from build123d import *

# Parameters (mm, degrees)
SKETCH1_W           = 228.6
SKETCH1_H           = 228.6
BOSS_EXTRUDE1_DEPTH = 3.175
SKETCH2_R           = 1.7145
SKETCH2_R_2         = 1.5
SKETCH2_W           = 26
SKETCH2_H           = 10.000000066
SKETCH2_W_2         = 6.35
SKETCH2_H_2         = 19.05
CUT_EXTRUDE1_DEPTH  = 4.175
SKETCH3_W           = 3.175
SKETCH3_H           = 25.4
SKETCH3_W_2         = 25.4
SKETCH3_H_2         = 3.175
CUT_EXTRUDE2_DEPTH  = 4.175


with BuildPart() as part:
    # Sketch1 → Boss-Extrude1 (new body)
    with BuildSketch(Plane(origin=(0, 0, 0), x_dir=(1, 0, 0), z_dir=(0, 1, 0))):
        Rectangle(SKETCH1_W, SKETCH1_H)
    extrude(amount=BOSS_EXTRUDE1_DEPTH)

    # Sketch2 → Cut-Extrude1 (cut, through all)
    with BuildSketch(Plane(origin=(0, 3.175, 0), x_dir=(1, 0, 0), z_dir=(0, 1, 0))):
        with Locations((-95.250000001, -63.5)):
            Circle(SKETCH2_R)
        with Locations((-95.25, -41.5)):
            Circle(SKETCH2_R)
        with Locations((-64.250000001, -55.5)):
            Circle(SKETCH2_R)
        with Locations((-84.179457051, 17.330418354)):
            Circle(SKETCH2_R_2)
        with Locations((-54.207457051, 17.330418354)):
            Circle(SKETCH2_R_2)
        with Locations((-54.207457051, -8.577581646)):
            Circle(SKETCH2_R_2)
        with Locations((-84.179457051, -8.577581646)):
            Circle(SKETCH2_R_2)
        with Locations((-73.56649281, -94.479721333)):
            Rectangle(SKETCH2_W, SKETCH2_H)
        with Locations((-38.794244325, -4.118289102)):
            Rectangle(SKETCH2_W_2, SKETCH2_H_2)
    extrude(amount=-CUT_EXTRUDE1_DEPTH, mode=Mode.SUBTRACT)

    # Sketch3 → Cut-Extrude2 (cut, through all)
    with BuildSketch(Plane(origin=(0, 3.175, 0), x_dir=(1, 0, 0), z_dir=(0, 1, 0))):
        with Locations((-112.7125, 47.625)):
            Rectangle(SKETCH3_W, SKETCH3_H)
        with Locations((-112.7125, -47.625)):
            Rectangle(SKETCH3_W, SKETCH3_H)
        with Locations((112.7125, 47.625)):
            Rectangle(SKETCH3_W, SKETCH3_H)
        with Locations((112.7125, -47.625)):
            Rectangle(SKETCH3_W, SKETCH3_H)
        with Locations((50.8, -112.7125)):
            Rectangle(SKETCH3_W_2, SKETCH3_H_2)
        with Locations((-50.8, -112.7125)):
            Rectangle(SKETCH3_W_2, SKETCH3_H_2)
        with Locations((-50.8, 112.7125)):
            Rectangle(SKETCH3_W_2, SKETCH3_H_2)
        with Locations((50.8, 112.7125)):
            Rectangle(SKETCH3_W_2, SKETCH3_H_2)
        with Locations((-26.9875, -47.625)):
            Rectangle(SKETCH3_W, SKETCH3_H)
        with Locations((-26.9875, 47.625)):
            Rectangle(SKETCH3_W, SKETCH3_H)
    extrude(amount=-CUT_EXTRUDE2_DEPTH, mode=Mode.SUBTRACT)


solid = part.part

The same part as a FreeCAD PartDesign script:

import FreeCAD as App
import Part
import Sketcher
from FreeCAD import Vector
Q = App.Units.Quantity

doc = App.newDocument("Part")
body = doc.addObject("PartDesign::Body", "Body")

# Sketch on XZ plane
sketch1 = body.newObject("Sketcher::SketchObject", "Sketch")
sketch1.AttachmentSupport = (doc.getObject("XZ_Plane"), [""])
sketch1.MapMode = "FlatFace"
sketch1.addGeometry([
    Part.LineSegment(Vector(-114.3, -114.3, 0), Vector(-114.3, 114.3, 0)),
    Part.LineSegment(Vector(-114.3, 114.3, 0), Vector(114.3, 114.3, 0)),
    Part.LineSegment(Vector(114.3, 114.3, 0), Vector(114.3, -114.3, 0)),
    Part.LineSegment(Vector(114.3, -114.3, 0), Vector(-114.3, -114.3, 0)),
], False)
sketch1.addConstraint([
    Sketcher.Constraint("Coincident", 0, 2, 1, 1),
    Sketcher.Constraint("Coincident", 1, 2, 2, 1),
    Sketcher.Constraint("Coincident", 2, 2, 3, 1),
    Sketcher.Constraint("Coincident", 3, 2, 0, 1),
    Sketcher.Constraint("Vertical", 0),
    Sketcher.Constraint("Horizontal", 1),
    Sketcher.Constraint("Vertical", 2),
    Sketcher.Constraint("Horizontal", 3),
    Sketcher.Constraint("Symmetric", 0, 2, 2, 2, -1, 1),
    Sketcher.Constraint("Equal", 3, 0),
    Sketcher.Constraint("DistanceX", 1, 1, 1, 2, Q("9 in")),
])
pad1 = body.newObject("PartDesign::Pad", "Pad")
pad1.Profile = sketch1
pad1.Length = Q("0.125 in")
pad1.Reversed = True

# Sketch on XZ plane
sketch2 = body.newObject("Sketcher::SketchObject", "Sketch001")
sketch2.AttachmentSupport = (doc.getObject("XZ_Plane"), [""])
sketch2.MapMode = "FlatFace"
sketch2.AttachmentOffset = App.Placement(Vector(0, 0, -0.125 * 25.4), App.Rotation())
sketch2.addGeometry([
    Part.Circle(Vector(-95.25, 63.5, 0), Vector(0, 0, 1), 1.7145),  # 0
    Part.Circle(Vector(-95.25, 41.5, 0), Vector(0, 0, 1), 1.7145),  # 1
    Part.Circle(Vector(-64.25, 55.5, 0), Vector(0, 0, 1), 1.7145),  # 2
    Part.Circle(Vector(-84.179457, -17.330418, 0), Vector(0, 0, 1), 1.5),  # 3
    Part.Circle(Vector(-54.207457, -17.330418, 0), Vector(0, 0, 1), 1.5),  # 4
    Part.Circle(Vector(-54.207457, 8.577582, 0), Vector(0, 0, 1), 1.5),  # 5
    Part.Circle(Vector(-84.179457, 8.577582, 0), Vector(0, 0, 1), 1.5),  # 6
    Part.LineSegment(Vector(-86.566493, 89.479721, 0), Vector(-86.566493, 99.479721, 0)),  # 7
    Part.LineSegment(Vector(-86.566493, 99.479721, 0), Vector(-60.566493, 99.479721, 0)),  # 8
    Part.LineSegment(Vector(-60.566493, 99.479721, 0), Vector(-60.566493, 89.479721, 0)),  # 9
    Part.LineSegment(Vector(-60.566493, 89.479721, 0), Vector(-86.566493, 89.479721, 0)),  # 10
    Part.LineSegment(Vector(-41.969244, -5.406711, 0), Vector(-41.969244, 13.643289, 0)),  # 11
    Part.LineSegment(Vector(-41.969244, 13.643289, 0), Vector(-35.619244, 13.643289, 0)),  # 12
    Part.LineSegment(Vector(-35.619244, 13.643289, 0), Vector(-35.619244, -5.406711, 0)),  # 13
    Part.LineSegment(Vector(-35.619244, -5.406711, 0), Vector(-41.969244, -5.406711, 0)),  # 14
], False)
sketch2.addConstraint([
    Sketcher.Constraint("Coincident", 7, 2, 8, 1),
    Sketcher.Constraint("Coincident", 8, 2, 9, 1),
    Sketcher.Constraint("Coincident", 9, 2, 10, 1),
    Sketcher.Constraint("Coincident", 10, 2, 7, 1),
    Sketcher.Constraint("Coincident", 11, 2, 12, 1),
    Sketcher.Constraint("Coincident", 12, 2, 13, 1),
    Sketcher.Constraint("Coincident", 13, 2, 14, 1),
    Sketcher.Constraint("Coincident", 14, 2, 11, 1),
    Sketcher.Constraint("Vertical", 7),
    Sketcher.Constraint("Horizontal", 8),
    Sketcher.Constraint("Vertical", 9),
    Sketcher.Constraint("Horizontal", 10),
    Sketcher.Constraint("Vertical", 11),
    Sketcher.Constraint("Horizontal", 12),
    Sketcher.Constraint("Vertical", 13),
    Sketcher.Constraint("Horizontal", 14),
    Sketcher.Constraint("Equal", 0, 1),
    Sketcher.Constraint("Equal", 1, 2),
    Sketcher.Constraint("Equal", 3, 4),
    Sketcher.Constraint("Equal", 4, 5),
    Sketcher.Constraint("Equal", 5, 6),
    Sketcher.Constraint("Horizontal", 3, 3, 4, 3),
    Sketcher.Constraint("Horizontal", 5, 3, 6, 3),
    Sketcher.Constraint("Vertical", 0, 3, 1, 3),
    Sketcher.Constraint("Vertical", 4, 3, 5, 3),
    Sketcher.Constraint("Vertical", 3, 3, 6, 3),
    Sketcher.Constraint("Diameter", 0, Q("0.135 in")),
    Sketcher.Constraint("DistanceX", 12, 1, 12, 2, Q("0.25 in")),
    Sketcher.Constraint("DistanceY", 11, 1, 11, 2, Q("0.75 in")),
    Sketcher.Constraint("DistanceY", -1, 1, 0, 3, Q("2.5 in")),
    Sketcher.Constraint("Diameter", 3, 3.0),
    Sketcher.Constraint("DistanceX", 0, 3, -1, 1, Q("3.75 in")),
    Sketcher.Constraint("DistanceX", 3, 3, 4, 3, Q("1.18 in")),
    Sketcher.Constraint("DistanceY", 4, 3, 5, 3, Q("1.02 in")),
    Sketcher.Constraint("DistanceX", 8, 1, 8, 2, 26.0),
    Sketcher.Constraint("DistanceY", 7, 1, 7, 2, 10.0),
    Sketcher.Constraint("DistanceY", 3, 3, -1, 1, Q("0.6822999 in")),
    Sketcher.Constraint("DistanceY", -1, 1, 1, 3, 41.5),
    Sketcher.Constraint("DistanceX", 2, 3, -1, 1, 64.25),
    Sketcher.Constraint("DistanceY", -1, 1, 2, 3, 55.5),
    Sketcher.Constraint("DistanceY", -1, 1, 7, 2, 99.479721),
    Sketcher.Constraint("DistanceY", -1, 1, 11, 2, 13.643289),
    Sketcher.Constraint("DistanceX", 3, 3, -1, 1, 84.179457),
    Sketcher.Constraint("DistanceX", 7, 2, -1, 1, 86.566493),
    Sketcher.Constraint("DistanceX", 11, 2, -1, 1, 41.969244),
])
pocket1 = body.newObject("PartDesign::Pocket", "Pocket")
pocket1.Profile = sketch2
pocket1.Type = "ThroughAll"
pocket1.Reversed = True

# Sketch on XZ plane
sketch3 = body.newObject("Sketcher::SketchObject", "Sketch002")
sketch3.AttachmentSupport = (doc.getObject("XZ_Plane"), [""])
sketch3.MapMode = "FlatFace"
sketch3.AttachmentOffset = App.Placement(Vector(0, 0, -0.125 * 25.4), App.Rotation())
sketch3.addGeometry([
    Part.LineSegment(Vector(-114.3, -60.325, 0), Vector(-114.3, -34.925, 0)),  # 0
    Part.LineSegment(Vector(-114.3, -34.925, 0), Vector(-111.125, -34.925, 0)),  # 1
    Part.LineSegment(Vector(-111.125, -34.925, 0), Vector(-111.125, -60.325, 0)),  # 2
    Part.LineSegment(Vector(-111.125, -60.325, 0), Vector(-114.3, -60.325, 0)),  # 3
    Part.LineSegment(Vector(-114.3, 34.925, 0), Vector(-114.3, 60.325, 0)),  # 4
    Part.LineSegment(Vector(-114.3, 60.325, 0), Vector(-111.125, 60.325, 0)),  # 5
    Part.LineSegment(Vector(-111.125, 60.325, 0), Vector(-111.125, 34.925, 0)),  # 6
    Part.LineSegment(Vector(-111.125, 34.925, 0), Vector(-114.3, 34.925, 0)),  # 7
    Part.LineSegment(Vector(111.125, -60.325, 0), Vector(111.125, -34.925, 0)),  # 8
    Part.LineSegment(Vector(111.125, -34.925, 0), Vector(114.3, -34.925, 0)),  # 9
    Part.LineSegment(Vector(114.3, -34.925, 0), Vector(114.3, -60.325, 0)),  # 10
    Part.LineSegment(Vector(114.3, -60.325, 0), Vector(111.125, -60.325, 0)),  # 11
    Part.LineSegment(Vector(111.125, 34.925, 0), Vector(111.125, 60.325, 0)),  # 12
    Part.LineSegment(Vector(111.125, 60.325, 0), Vector(114.3, 60.325, 0)),  # 13
    Part.LineSegment(Vector(114.3, 60.325, 0), Vector(114.3, 34.925, 0)),  # 14
    Part.LineSegment(Vector(114.3, 34.925, 0), Vector(111.125, 34.925, 0)),  # 15
    Part.LineSegment(Vector(38.1, 111.125, 0), Vector(38.1, 114.3, 0)),  # 16
    Part.LineSegment(Vector(38.1, 114.3, 0), Vector(63.5, 114.3, 0)),  # 17
    Part.LineSegment(Vector(63.5, 114.3, 0), Vector(63.5, 111.125, 0)),  # 18
    Part.LineSegment(Vector(63.5, 111.125, 0), Vector(38.1, 111.125, 0)),  # 19
    Part.LineSegment(Vector(-63.5, 111.125, 0), Vector(-63.5, 114.3, 0)),  # 20
    Part.LineSegment(Vector(-63.5, 114.3, 0), Vector(-38.1, 114.3, 0)),  # 21
    Part.LineSegment(Vector(-38.1, 114.3, 0), Vector(-38.1, 111.125, 0)),  # 22
    Part.LineSegment(Vector(-38.1, 111.125, 0), Vector(-63.5, 111.125, 0)),  # 23
    Part.LineSegment(Vector(-63.5, -114.3, 0), Vector(-63.5, -111.125, 0)),  # 24
    Part.LineSegment(Vector(-63.5, -111.125, 0), Vector(-38.1, -111.125, 0)),  # 25
    Part.LineSegment(Vector(-38.1, -111.125, 0), Vector(-38.1, -114.3, 0)),  # 26
    Part.LineSegment(Vector(-38.1, -114.3, 0), Vector(-63.5, -114.3, 0)),  # 27
    Part.LineSegment(Vector(38.1, -114.3, 0), Vector(38.1, -111.125, 0)),  # 28
    Part.LineSegment(Vector(38.1, -111.125, 0), Vector(63.5, -111.125, 0)),  # 29
    Part.LineSegment(Vector(63.5, -111.125, 0), Vector(63.5, -114.3, 0)),  # 30
    Part.LineSegment(Vector(63.5, -114.3, 0), Vector(38.1, -114.3, 0)),  # 31
    Part.LineSegment(Vector(-28.575, 34.925, 0), Vector(-28.575, 60.325, 0)),  # 32
    Part.LineSegment(Vector(-28.575, 60.325, 0), Vector(-25.4, 60.325, 0)),  # 33
    Part.LineSegment(Vector(-25.4, 60.325, 0), Vector(-25.4, 34.925, 0)),  # 34
    Part.LineSegment(Vector(-25.4, 34.925, 0), Vector(-28.575, 34.925, 0)),  # 35
    Part.LineSegment(Vector(-28.575, -60.325, 0), Vector(-28.575, -34.925, 0)),  # 36
    Part.LineSegment(Vector(-28.575, -34.925, 0), Vector(-25.4, -34.925, 0)),  # 37
    Part.LineSegment(Vector(-25.4, -34.925, 0), Vector(-25.4, -60.325, 0)),  # 38
    Part.LineSegment(Vector(-25.4, -60.325, 0), Vector(-28.575, -60.325, 0)),  # 39
], False)
sketch3.addConstraint([
    Sketcher.Constraint("Coincident", 0, 2, 1, 1),
    Sketcher.Constraint("Coincident", 1, 2, 2, 1),
    Sketcher.Constraint("Coincident", 2, 2, 3, 1),
    Sketcher.Constraint("Coincident", 3, 2, 0, 1),
    Sketcher.Constraint("Coincident", 4, 2, 5, 1),
    Sketcher.Constraint("Coincident", 5, 2, 6, 1),
    Sketcher.Constraint("Coincident", 6, 2, 7, 1),
    Sketcher.Constraint("Coincident", 7, 2, 4, 1),
    Sketcher.Constraint("Coincident", 8, 2, 9, 1),
    Sketcher.Constraint("Coincident", 9, 2, 10, 1),
    Sketcher.Constraint("Coincident", 10, 2, 11, 1),
    Sketcher.Constraint("Coincident", 11, 2, 8, 1),
    Sketcher.Constraint("Coincident", 12, 2, 13, 1),
    Sketcher.Constraint("Coincident", 13, 2, 14, 1),
    Sketcher.Constraint("Coincident", 14, 2, 15, 1),
    Sketcher.Constraint("Coincident", 15, 2, 12, 1),
    Sketcher.Constraint("Coincident", 16, 2, 17, 1),
    Sketcher.Constraint("Coincident", 17, 2, 18, 1),
    Sketcher.Constraint("Coincident", 18, 2, 19, 1),
    Sketcher.Constraint("Coincident", 19, 2, 16, 1),
    Sketcher.Constraint("Coincident", 20, 2, 21, 1),
    Sketcher.Constraint("Coincident", 21, 2, 22, 1),
    Sketcher.Constraint("Coincident", 22, 2, 23, 1),
    Sketcher.Constraint("Coincident", 23, 2, 20, 1),
    Sketcher.Constraint("Coincident", 24, 2, 25, 1),
    Sketcher.Constraint("Coincident", 25, 2, 26, 1),
    Sketcher.Constraint("Coincident", 26, 2, 27, 1),
    Sketcher.Constraint("Coincident", 27, 2, 24, 1),
    Sketcher.Constraint("Coincident", 28, 2, 29, 1),
    Sketcher.Constraint("Coincident", 29, 2, 30, 1),
    Sketcher.Constraint("Coincident", 30, 2, 31, 1),
    Sketcher.Constraint("Coincident", 31, 2, 28, 1),
    Sketcher.Constraint("Coincident", 32, 2, 33, 1),
    Sketcher.Constraint("Coincident", 33, 2, 34, 1),
    Sketcher.Constraint("Coincident", 34, 2, 35, 1),
    Sketcher.Constraint("Coincident", 35, 2, 32, 1),
    Sketcher.Constraint("Coincident", 36, 2, 37, 1),
    Sketcher.Constraint("Coincident", 37, 2, 38, 1),
    Sketcher.Constraint("Coincident", 38, 2, 39, 1),
    Sketcher.Constraint("Coincident", 39, 2, 36, 1),
    Sketcher.Constraint("Vertical", 0),
    Sketcher.Constraint("Horizontal", 1),
    Sketcher.Constraint("Vertical", 2),
    Sketcher.Constraint("Horizontal", 3),
    Sketcher.Constraint("Vertical", 4),
    Sketcher.Constraint("Horizontal", 5),
    Sketcher.Constraint("Vertical", 6),
    Sketcher.Constraint("Horizontal", 7),
    Sketcher.Constraint("Vertical", 8),
    Sketcher.Constraint("Horizontal", 9),
    Sketcher.Constraint("Vertical", 10),
    Sketcher.Constraint("Horizontal", 11),
    Sketcher.Constraint("Vertical", 12),
    Sketcher.Constraint("Horizontal", 13),
    Sketcher.Constraint("Vertical", 14),
    Sketcher.Constraint("Horizontal", 15),
    Sketcher.Constraint("Vertical", 16),
    Sketcher.Constraint("Horizontal", 17),
    Sketcher.Constraint("Vertical", 18),
    Sketcher.Constraint("Horizontal", 19),
    Sketcher.Constraint("Vertical", 20),
    Sketcher.Constraint("Horizontal", 21),
    Sketcher.Constraint("Vertical", 22),
    Sketcher.Constraint("Horizontal", 23),
    Sketcher.Constraint("Vertical", 24),
    Sketcher.Constraint("Horizontal", 25),
    Sketcher.Constraint("Vertical", 26),
    Sketcher.Constraint("Horizontal", 27),
    Sketcher.Constraint("Vertical", 28),
    Sketcher.Constraint("Horizontal", 29),
    Sketcher.Constraint("Vertical", 30),
    Sketcher.Constraint("Horizontal", 31),
    Sketcher.Constraint("Vertical", 32),
    Sketcher.Constraint("Horizontal", 33),
    Sketcher.Constraint("Vertical", 34),
    Sketcher.Constraint("Horizontal", 35),
    Sketcher.Constraint("Vertical", 36),
    Sketcher.Constraint("Horizontal", 37),
    Sketcher.Constraint("Vertical", 38),
    Sketcher.Constraint("Horizontal", 39),
    Sketcher.Constraint("Symmetric", 6, 2, 8, 2, -1, 1),
    Sketcher.Constraint("Symmetric", 4, 2, 10, 2, -1, 1),
    Sketcher.Constraint("Symmetric", 2, 2, 12, 2, -1, 1),
    Sketcher.Constraint("Symmetric", 0, 2, 14, 2, -1, 1),
    Sketcher.Constraint("Symmetric", 18, 2, 24, 2, -1, 1),
    Sketcher.Constraint("Symmetric", 16, 2, 26, 2, -1, 1),
    Sketcher.Constraint("Symmetric", 22, 2, 28, 2, -1, 1),
    Sketcher.Constraint("Symmetric", 20, 2, 30, 2, -1, 1),
    Sketcher.Constraint("Symmetric", 1, 2, 8, 2, -2),
    Sketcher.Constraint("Symmetric", 3, 2, 10, 2, -2),
    Sketcher.Constraint("Symmetric", 17, 2, 20, 2, -2),
    Sketcher.Constraint("Symmetric", 19, 2, 22, 2, -2),
    Sketcher.Constraint("Symmetric", 35, 2, 36, 2, -1),
    Sketcher.Constraint("Symmetric", 33, 2, 38, 2, -1),
    Sketcher.Constraint("Horizontal", 13, 2, 32, 2),
    Sketcher.Constraint("Horizontal", 15, 2, 34, 2),
    Sketcher.Constraint("Equal", 15, 33),
    Sketcher.Constraint("Equal", 31, 0),
    Sketcher.Constraint("Equal", 39, 16),
    Sketcher.Constraint("DistanceX", 17, 1, 17, 2, Q("1 in")),
    Sketcher.Constraint("DistanceX", 33, 2, -1, 1, Q("1 in")),
    Sketcher.Constraint("DistanceX", 0, 2, 9, 2, Q("9 in")),
    Sketcher.Constraint("DistanceX", 16, 2, 13, 2, Q("3 in")),
    Sketcher.Constraint("DistanceY", 12, 2, 18, 2, Q("2 in")),
    Sketcher.Constraint("DistanceY", -1, 1, 16, 2, Q("4.5 in")),
    Sketcher.Constraint("DistanceX", 1, 1, 1, 2, Q("0.125 in")),
])
pocket2 = body.newObject("PartDesign::Pocket", "Pocket001")
pocket2.Profile = sketch3
pocket2.Type = "ThroughAll"
pocket2.Reversed = True

doc.recompute()
